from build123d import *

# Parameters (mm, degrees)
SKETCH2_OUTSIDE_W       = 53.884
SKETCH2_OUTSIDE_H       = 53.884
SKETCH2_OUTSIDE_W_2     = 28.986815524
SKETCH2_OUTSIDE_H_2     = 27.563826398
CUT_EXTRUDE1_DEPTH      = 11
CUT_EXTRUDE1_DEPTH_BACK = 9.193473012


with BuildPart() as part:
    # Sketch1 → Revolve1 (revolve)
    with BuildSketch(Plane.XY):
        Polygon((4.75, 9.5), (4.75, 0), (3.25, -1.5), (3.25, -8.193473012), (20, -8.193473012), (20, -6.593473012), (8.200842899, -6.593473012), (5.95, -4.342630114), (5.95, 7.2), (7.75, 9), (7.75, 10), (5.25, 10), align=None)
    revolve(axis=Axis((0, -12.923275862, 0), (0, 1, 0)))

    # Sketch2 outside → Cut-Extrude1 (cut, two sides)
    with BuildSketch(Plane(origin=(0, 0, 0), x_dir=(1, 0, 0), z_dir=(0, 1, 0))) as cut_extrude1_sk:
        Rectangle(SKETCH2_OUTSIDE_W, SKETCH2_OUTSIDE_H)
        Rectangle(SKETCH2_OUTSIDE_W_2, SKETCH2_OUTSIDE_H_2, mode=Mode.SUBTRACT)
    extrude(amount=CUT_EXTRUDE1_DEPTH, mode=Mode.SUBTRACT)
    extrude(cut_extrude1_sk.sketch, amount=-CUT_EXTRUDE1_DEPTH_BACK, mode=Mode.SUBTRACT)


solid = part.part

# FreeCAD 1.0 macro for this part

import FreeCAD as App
import Part
import Sketcher
from FreeCAD import Vector
Q = App.Units.Quantity


def add_polygon(sketch, points):
    """Adds a closed chain of lines whose ends are joined by coincident constraints."""
    first, n = sketch.GeometryCount, len(points)
    for a, b in zip(points, points[1:] + points[:1]):
        sketch.addGeometry(Part.LineSegment(App.Vector(*a, 0), App.Vector(*b, 0)), False)
    for i in range(n):
        sketch.addConstraint(Sketcher.Constraint("Coincident", first + i, 2, first + (i + 1) % n, 1))

doc = App.newDocument("Part")
params = doc.addObject("Spreadsheet::Sheet", "Params")
for row, (alias, value) in enumerate([
    ("sketch1_height", "1 mm"),
    ("sketch1_width", "2.5 mm"),
    ("sketch1_height2", "9.5 mm"),
    ("sketch1_height3", "1.6 mm"),
    ("sketch1_width2", "16.75 mm"),
    ("revolution_angle", "360 deg"),
], start=1):
    params.set(f"A{row}", alias)
    params.set(f"B{row}", "=" + value)
    params.setAlias(f"B{row}", alias)

body = doc.addObject("PartDesign::Body", "Body")

# Sketch on XY plane
sketch1 = body.newObject("Sketcher::SketchObject", "Sketch")
sketch1.AttachmentSupport = (doc.getObject("XY_Plane"), [""])
sketch1.MapMode = "FlatFace"
add_polygon(sketch1, [(4.8, 9.5), (4.8, 0), (3.2, -1.5), (3.2, -8.2), (20, -8.2), (20, -6.6), (8.2, -6.6), (6, -4.3), (6, 7.2), (7.8, 9), (7.8, 10), (5.2, 10)])  # lines 0-11
sketch1.addConstraint([
    Sketcher.Constraint("Vertical", 0),
    Sketcher.Constraint("Vertical", 2),
    Sketcher.Constraint("Horizontal", 3),
    Sketcher.Constraint("Vertical", 4),
    Sketcher.Constraint("Horizontal", 5),
    Sketcher.Constraint("Vertical", 7),
    Sketcher.Constraint("Vertical", 9),
    Sketcher.Constraint("Horizontal", 10),
    Sketcher.Constraint("PointOnObject", 0, 2, -1),
    Sketcher.Constraint("Perpendicular", 1, 6),
    Sketcher.Constraint("Perpendicular", 6, 8),
    Sketcher.Constraint("Parallel", 8, 11),
    Sketcher.Constraint("DistanceY", 9, 1, 9, 2, Q("1 mm")),
    Sketcher.Constraint("Angle", 1, Q("-135 deg")),
    Sketcher.Constraint("DistanceX", 10, 2, 10, 1, Q("2.5 mm")),
    Sketcher.Constraint("DistanceY", 0, 2, 0, 1, Q("9.5 mm")),
    Sketcher.Constraint("DistanceY", 4, 1, 4, 2, Q("1.6 mm")),
    Sketcher.Constraint("DistanceX", -1, 1, 3, 2, Q("20 mm")),
    Sketcher.Constraint("DistanceY", -1, 1, 8, 2, Q("9 mm")),
    Sketcher.Constraint("DistanceX", 1, 2, 10, 2, Q("2 mm")),
    Sketcher.Constraint("DistanceX", 3, 1, 3, 2, Q("16.75 mm")),
    Sketcher.Constraint("DistanceY", -1, 1, 7, 2, Q("7.2 mm")),
    Sketcher.Constraint("DistanceY", 7, 1, 7, 2, Q("11.54263 mm")),
    Sketcher.Constraint("DistanceX", 5, 2, 5, 1, Q("11.799157 mm")),
])
sketch1.setExpression("Constraints[24]", "Params.sketch1_height")
sketch1.setExpression("Constraints[26]", "Params.sketch1_width")
sketch1.setExpression("Constraints[27]", "Params.sketch1_height2")
sketch1.setExpression("Constraints[28]", "Params.sketch1_height3")
sketch1.setExpression("Constraints[32]", "Params.sketch1_width2")
revolution = body.newObject("PartDesign::Revolution", "Revolution")
revolution.Profile = sketch1
revolution.ReferenceAxis = (sketch1, ["V_Axis"])
revolution.setExpression("Angle", "Params.revolution_angle")

# Sketch on XZ plane
sketch2 = body.newObject("Sketcher::SketchObject", "Sketch001")
sketch2.AttachmentSupport = (doc.getObject("XZ_Plane"), [""])
sketch2.MapMode = "FlatFace"
add_polygon(sketch2, [(-27, -27), (-27, 27), (27, 27), (27, -27)])  # lines 0-3
add_polygon(sketch2, [(14, 14), (-14, 14), (-14, -14), (14, -14)])  # lines 4-7
sketch2.addConstraint([
    Sketcher.Constraint("Vertical", 0),
    Sketcher.Constraint("Horizontal", 1),
    Sketcher.Constraint("Vertical", 2),
    Sketcher.Constraint("Horizontal", 3),
    Sketcher.Constraint("Horizontal", 4),
    Sketcher.Constraint("Vertical", 5),
    Sketcher.Constraint("Horizontal", 6),
    Sketcher.Constraint("Vertical", 7),
    Sketcher.Constraint("Symmetric", 0, 2, 2, 2, -1, 1),
    Sketcher.Constraint("Symmetric", 4, 2, 6, 2, -1, 1),
    Sketcher.Constraint("Equal", 3, 0),
    Sketcher.Constraint("DistanceX", 1, 1, 1, 2, Q("53.884 mm")),
    Sketcher.Constraint("DistanceX", 4, 2, 4, 1, Q("28.986816 mm")),
    Sketcher.Constraint("DistanceY", 5, 2, 5, 1, Q("27.563826 mm")),
])
pocket1 = body.newObject("PartDesign::Pocket", "Pocket")
pocket1.Profile = sketch2
pocket1.Type = "ThroughAll"
pocket1.Midplane = True

doc.recompute()
